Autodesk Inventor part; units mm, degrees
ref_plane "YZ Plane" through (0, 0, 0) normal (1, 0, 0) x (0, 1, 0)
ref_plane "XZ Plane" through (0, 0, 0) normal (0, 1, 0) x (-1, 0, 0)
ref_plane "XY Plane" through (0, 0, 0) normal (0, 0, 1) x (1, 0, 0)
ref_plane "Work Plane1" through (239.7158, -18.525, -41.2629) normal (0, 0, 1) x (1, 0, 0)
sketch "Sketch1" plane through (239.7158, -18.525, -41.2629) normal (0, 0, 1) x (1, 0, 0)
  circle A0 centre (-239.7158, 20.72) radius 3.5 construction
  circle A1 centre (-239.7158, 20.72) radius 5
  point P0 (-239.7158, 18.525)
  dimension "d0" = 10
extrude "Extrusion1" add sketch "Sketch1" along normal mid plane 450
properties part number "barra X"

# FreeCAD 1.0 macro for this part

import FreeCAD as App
import Part
import Sketcher
from FreeCAD import Vector

doc = App.newDocument("Part")
params = doc.addObject("Spreadsheet::Sheet", "Params")
for row, (alias, value) in enumerate([
    ("sketch1_diameter", "10 mm"),
    ("pad1_length", "450 mm"),
], start=1):
    params.set(f"A{row}", alias)
    params.set(f"B{row}", "=" + value)
    params.setAlias(f"B{row}", alias)

body = doc.addObject("PartDesign::Body", "Body")

# Sketch on XY plane
sketch1 = body.newObject("Sketcher::SketchObject", "Sketch")
sketch1.AttachmentSupport = (doc.getObject("XY_Plane"), [""])
sketch1.MapMode = "FlatFace"
sketch1.AttachmentOffset = App.Placement(Vector(0, 0, -41.2629), App.Rotation())
sketch1.addGeometry(Part.Circle(Vector(0, 2.195, 0), Vector(0, 0, 1), 5), False)
sketch1.addConstraint([
    Sketcher.Constraint("PointOnObject", 0, 3, -2),
    Sketcher.Constraint("Diameter", 0, 10.0),
    Sketcher.Constraint("DistanceY", -1, 1, 0, 3, 2.195),
])
sketch1.setExpression("Constraints[1]", "Params.sketch1_diameter")
pad1 = body.newObject("PartDesign::Pad", "Pad")
pad1.Profile = sketch1
pad1.setExpression("Length", "Params.pad1_length")
pad1.Midplane = True

doc.recompute()
